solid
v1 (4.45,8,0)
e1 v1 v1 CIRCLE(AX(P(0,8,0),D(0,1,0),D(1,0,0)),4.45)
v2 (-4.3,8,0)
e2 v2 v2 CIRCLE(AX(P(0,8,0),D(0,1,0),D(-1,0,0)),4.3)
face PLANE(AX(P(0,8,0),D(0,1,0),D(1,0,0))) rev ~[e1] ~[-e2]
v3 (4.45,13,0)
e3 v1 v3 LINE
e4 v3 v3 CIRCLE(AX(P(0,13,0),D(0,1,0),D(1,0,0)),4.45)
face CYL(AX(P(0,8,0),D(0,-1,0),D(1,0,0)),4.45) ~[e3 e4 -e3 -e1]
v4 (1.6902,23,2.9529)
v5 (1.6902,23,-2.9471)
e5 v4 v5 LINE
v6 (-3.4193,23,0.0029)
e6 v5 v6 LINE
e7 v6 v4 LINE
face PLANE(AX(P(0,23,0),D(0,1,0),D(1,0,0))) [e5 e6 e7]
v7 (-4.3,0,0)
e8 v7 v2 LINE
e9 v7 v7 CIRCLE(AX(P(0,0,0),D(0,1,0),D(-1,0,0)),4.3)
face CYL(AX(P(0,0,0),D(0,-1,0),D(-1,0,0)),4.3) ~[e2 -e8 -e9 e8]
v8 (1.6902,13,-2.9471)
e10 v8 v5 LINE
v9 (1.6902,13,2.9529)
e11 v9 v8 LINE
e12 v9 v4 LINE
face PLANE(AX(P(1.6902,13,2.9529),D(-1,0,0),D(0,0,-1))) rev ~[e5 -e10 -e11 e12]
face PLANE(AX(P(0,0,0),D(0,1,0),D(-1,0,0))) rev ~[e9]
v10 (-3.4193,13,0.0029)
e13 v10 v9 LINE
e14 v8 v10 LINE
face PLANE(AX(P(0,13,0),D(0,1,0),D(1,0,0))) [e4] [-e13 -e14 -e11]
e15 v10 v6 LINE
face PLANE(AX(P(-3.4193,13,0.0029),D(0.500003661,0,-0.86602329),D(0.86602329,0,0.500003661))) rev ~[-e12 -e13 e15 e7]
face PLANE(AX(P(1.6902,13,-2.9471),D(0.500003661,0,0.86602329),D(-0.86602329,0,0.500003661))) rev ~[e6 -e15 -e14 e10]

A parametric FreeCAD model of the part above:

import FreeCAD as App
import Part
import Sketcher
Q = App.Units.Quantity


def add_polygon(sketch, points):
    """Adds a closed chain of lines whose ends are joined by coincident constraints."""
    first, n = sketch.GeometryCount, len(points)
    for a, b in zip(points, points[1:] + points[:1]):
        sketch.addGeometry(Part.LineSegment(App.Vector(*a, 0), App.Vector(*b, 0)), False)
    for i in range(n):
        sketch.addConstraint(Sketcher.Constraint("Coincident", first + i, 2, first + (i + 1) % n, 1))

doc = App.newDocument("Part")
body = doc.addObject("PartDesign::Body", "Body")

sketch1 = body.newObject("Sketcher::SketchObject", "Sketch")
sketch1.AttachmentSupport = (doc.getObject("XZ_Plane"), [""])
sketch1.MapMode = "FlatFace"
sketch1.addGeometry(Part.Circle(App.Vector(0, 0, 0), App.Vector(0, 0, 1), 4.3), False)
sketch1.addConstraint(Sketcher.Constraint("Coincident", 0, 3, -1, 1))
sketch1.addConstraint(Sketcher.Constraint("Diameter", 0, Q("8.6 mm")))
pad1 = body.newObject("PartDesign::Pad", "Pad")
pad1.Profile = sketch1
pad1.Length = 8
pad1.Reversed = True

sketch2 = body.newObject("Sketcher::SketchObject", "Sketch001")
sketch2.AttachmentSupport = (doc.getObject("XZ_Plane"), [""])
sketch2.MapMode = "FlatFace"
sketch2.AttachmentOffset = App.Placement(App.Vector(0, 0, -8), App.Rotation())
sketch2.addGeometry(Part.Circle(App.Vector(0, 0, 0), App.Vector(0, 0, 1), 4.5), False)
sketch2.addConstraint(Sketcher.Constraint("Coincident", 0, 3, -1, 1))
sketch2.addConstraint(Sketcher.Constraint("Diameter", 0, Q("8.9 mm")))
pad2 = body.newObject("PartDesign::Pad", "Pad001")
pad2.Profile = sketch2
pad2.Length = 5
pad2.Reversed = True

sketch3 = body.newObject("Sketcher::SketchObject", "Sketch002")
sketch3.AttachmentSupport = (doc.getObject("XZ_Plane"), [""])
sketch3.MapMode = "FlatFace"
sketch3.AttachmentOffset = App.Placement(App.Vector(0, 0, -13), App.Rotation())
add_polygon(sketch3, [(2, -3), (-3, 0), (2, 3)])
sketch3.addConstraint(Sketcher.Constraint("Vertical", 2))
sketch3.addConstraint(Sketcher.Constraint("Equal", 0, 1))
sketch3.addConstraint(Sketcher.Constraint("DistanceY", 2, 2, 2, 1, Q("5.9 mm")))
sketch3.addConstraint(Sketcher.Constraint("Distance", 0, Q("5.9 mm")))
sketch3.addConstraint(Sketcher.Constraint("DistanceY", -1, 1, 0, 2, Q("0.003 mm")))
sketch3.addConstraint(Sketcher.Constraint("DistanceX", 0, 2, -1, 1, Q("3.4193 mm")))
pad3 = body.newObject("PartDesign::Pad", "Pad002")
pad3.Profile = sketch3
pad3.Length = 10
pad3.Reversed = True

doc.recompute()
